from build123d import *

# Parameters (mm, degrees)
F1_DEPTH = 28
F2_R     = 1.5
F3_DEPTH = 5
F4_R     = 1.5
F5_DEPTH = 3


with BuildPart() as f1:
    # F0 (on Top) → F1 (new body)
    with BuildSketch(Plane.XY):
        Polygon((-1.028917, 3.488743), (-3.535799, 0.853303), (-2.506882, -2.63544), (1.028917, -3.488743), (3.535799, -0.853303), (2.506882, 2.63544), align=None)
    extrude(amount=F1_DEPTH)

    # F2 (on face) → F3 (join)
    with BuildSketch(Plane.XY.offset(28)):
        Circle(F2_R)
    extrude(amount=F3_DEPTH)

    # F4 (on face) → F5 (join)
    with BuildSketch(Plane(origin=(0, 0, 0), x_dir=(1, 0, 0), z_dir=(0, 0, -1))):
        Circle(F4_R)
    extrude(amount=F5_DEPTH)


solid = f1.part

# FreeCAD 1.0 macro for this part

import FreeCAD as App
import Part
import Sketcher

V = App.Vector
Q = App.Units.Quantity

doc = App.newDocument("Part")
body = doc.addObject("PartDesign::Body", "Body")

# Sketch on XY plane
sketch1 = doc.addObject("Sketcher::SketchObject", "Sketch")
body.addObject(sketch1)
sketch1.AttachmentSupport = (doc.XY_Plane, [""])
sketch1.MapMode = "FlatFace"
sketch1.addGeometry(Part.LineSegment(V(-1, 3.5, 0), V(-3.5, 0.9, 0)), False)
sketch1.addGeometry(Part.LineSegment(V(-3.5, 0.9, 0), V(-2.5, -2.6, 0)), False)
sketch1.addGeometry(Part.LineSegment(V(-2.5, -2.6, 0), V(1, -3.5, 0)), False)
sketch1.addGeometry(Part.LineSegment(V(1, -3.5, 0), V(3.5, -0.9, 0)), False)
sketch1.addGeometry(Part.LineSegment(V(3.5, -0.9, 0), V(2.5, 2.6, 0)), False)
sketch1.addGeometry(Part.LineSegment(V(2.5, 2.6, 0), V(-1, 3.5, 0)), False)
sketch1.addConstraint(Sketcher.Constraint("Coincident", 0, 2, 1, 1))
sketch1.addConstraint(Sketcher.Constraint("Coincident", 1, 2, 2, 1))
sketch1.addConstraint(Sketcher.Constraint("Coincident", 2, 2, 3, 1))
sketch1.addConstraint(Sketcher.Constraint("Coincident", 3, 2, 4, 1))
sketch1.addConstraint(Sketcher.Constraint("Coincident", 4, 2, 5, 1))
sketch1.addConstraint(Sketcher.Constraint("Coincident", 5, 2, 0, 1))
sketch1.addConstraint(Sketcher.Constraint("Symmetric", 0, 2, 3, 2, -1, 1))
sketch1.addConstraint(Sketcher.Constraint("Symmetric", 1, 2, 4, 2, -1, 1))
sketch1.addConstraint(Sketcher.Constraint("Symmetric", 2, 2, 5, 2, -1, 1))
sketch1.addConstraint(Sketcher.Constraint("Equal", 0, 1))
sketch1.addConstraint(Sketcher.Constraint("Equal", 1, 2))
sketch1.addConstraint(Sketcher.Constraint("DistanceX", 0, 2, -1, 1, Q("3.535799 mm")))
sketch1.addConstraint(Sketcher.Constraint("DistanceX", 1, 2, 2, 2, Q("3.535799 mm")))
sketch1.addConstraint(Sketcher.Constraint("DistanceX", 1, 2, -1, 1, Q("2.506882 mm")))
sketch1.addConstraint(Sketcher.Constraint("DistanceY", 1, 2, -1, 1, Q("2.63544 mm")))
pad1 = doc.addObject("PartDesign::Pad", "Pad")
body.addObject(pad1)
pad1.Profile = sketch1
pad1.Length = 28

# Sketch on XY plane
sketch2 = doc.addObject("Sketcher::SketchObject", "Sketch001")
body.addObject(sketch2)
sketch2.AttachmentSupport = (doc.XY_Plane, [""])
sketch2.MapMode = "FlatFace"
sketch2.AttachmentOffset = App.Placement(V(0, 0, 28), App.Rotation())
sketch2.addGeometry(Part.Circle(V(0, 0, 0), V(0, 0, 1), 1.5), False)
sketch2.addConstraint(Sketcher.Constraint("Coincident", 0, 3, -1, 1))
sketch2.addConstraint(Sketcher.Constraint("Diameter", 0, Q("3 mm")))
pad2 = doc.addObject("PartDesign::Pad", "Pad001")
body.addObject(pad2)
pad2.Profile = sketch2
pad2.Length = 5

# Sketch on XY plane
sketch3 = doc.addObject("Sketcher::SketchObject", "Sketch002")
body.addObject(sketch3)
sketch3.AttachmentSupport = (doc.XY_Plane, [""])
sketch3.MapMode = "FlatFace"
sketch3.addGeometry(Part.Circle(V(0, 0, 0), V(0, 0, 1), 1.5), False)
sketch3.addConstraint(Sketcher.Constraint("Coincident", 0, 3, -1, 1))
sketch3.addConstraint(Sketcher.Constraint("Diameter", 0, Q("3 mm")))
pad3 = doc.addObject("PartDesign::Pad", "Pad002")
body.addObject(pad3)
pad3.Profile = sketch3
pad3.Length = 3
pad3.Reversed = True

doc.recompute()
